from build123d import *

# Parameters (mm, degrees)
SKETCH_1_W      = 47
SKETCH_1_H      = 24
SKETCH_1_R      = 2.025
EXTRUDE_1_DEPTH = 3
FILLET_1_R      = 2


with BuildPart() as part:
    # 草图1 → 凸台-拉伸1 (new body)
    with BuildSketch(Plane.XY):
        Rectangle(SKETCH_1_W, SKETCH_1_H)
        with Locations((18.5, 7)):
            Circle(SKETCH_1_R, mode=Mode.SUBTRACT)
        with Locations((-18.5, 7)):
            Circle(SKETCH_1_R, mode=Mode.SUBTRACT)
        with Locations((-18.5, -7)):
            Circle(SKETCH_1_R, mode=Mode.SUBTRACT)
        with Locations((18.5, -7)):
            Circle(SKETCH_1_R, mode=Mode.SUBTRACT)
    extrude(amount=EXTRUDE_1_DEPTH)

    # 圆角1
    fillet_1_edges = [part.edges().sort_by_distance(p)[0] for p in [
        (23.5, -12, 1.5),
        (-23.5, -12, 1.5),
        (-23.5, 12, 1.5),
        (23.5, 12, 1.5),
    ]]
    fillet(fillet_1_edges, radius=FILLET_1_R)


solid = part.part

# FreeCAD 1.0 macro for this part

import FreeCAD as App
import Part
import Sketcher


def edges_at(feature, points):
    """Names of the edges that pass closest to the given points."""
    edges = feature.Shape.Edges
    near = lambda p: min(range(len(edges)), key=lambda i: edges[i].distToShape(Part.Vertex(*p))[0])
    return sorted({f"Edge{near(p) + 1}" for p in points})

doc = App.newDocument("Part")
body = doc.addObject("PartDesign::Body", "Body")

sketch1 = body.newObject("Sketcher::SketchObject", "Sketch")
sketch1.AttachmentSupport = (doc.getObject("XY_Plane"), [""])
sketch1.MapMode = "FlatFace"
sketch1.addGeometry(Part.LineSegment(App.Vector(-23.5, 12, 0), App.Vector(-23.5, -12, 0)), False)
sketch1.addGeometry(Part.LineSegment(App.Vector(-23.5, -12, 0), App.Vector(23.5, -12, 0)), False)
sketch1.addGeometry(Part.LineSegment(App.Vector(23.5, -12, 0), App.Vector(23.5, 12, 0)), False)
sketch1.addGeometry(Part.LineSegment(App.Vector(23.5, 12, 0), App.Vector(-23.5, 12, 0)), False)
sketch1.addGeometry(Part.Circle(App.Vector(-18.5, -7, 0), App.Vector(0, 0, 1), 2), False)
sketch1.addGeometry(Part.Circle(App.Vector(18.5, -7, 0), App.Vector(0, 0, 1), 2), False)
sketch1.addGeometry(Part.Circle(App.Vector(-18.5, 7, 0), App.Vector(0, 0, 1), 2), False)
sketch1.addGeometry(Part.Circle(App.Vector(18.5, 7, 0), App.Vector(0, 0, 1), 2), False)
sketch1.addConstraint(Sketcher.Constraint("Coincident", 0, 2, 1, 1))
sketch1.addConstraint(Sketcher.Constraint("Coincident", 1, 2, 2, 1))
sketch1.addConstraint(Sketcher.Constraint("Coincident", 2, 2, 3, 1))
sketch1.addConstraint(Sketcher.Constraint("Coincident", 3, 2, 0, 1))
sketch1.addConstraint(Sketcher.Constraint("Vertical", 0))
sketch1.addConstraint(Sketcher.Constraint("Horizontal", 1))
sketch1.addConstraint(Sketcher.Constraint("Vertical", 2))
sketch1.addConstraint(Sketcher.Constraint("Horizontal", 3))
sketch1.addConstraint(Sketcher.Constraint("Equal", 4, 5))
sketch1.addConstraint(Sketcher.Constraint("Equal", 5, 6))
sketch1.addConstraint(Sketcher.Constraint("Equal", 6, 7))
sketch1.addConstraint(Sketcher.Constraint("Symmetric", 5, 3, 6, 3, -1, 1))
sketch1.addConstraint(Sketcher.Constraint("Symmetric", 4, 3, 7, 3, -1, 1))
sketch1.addConstraint(Sketcher.Constraint("Symmetric", 0, 2, 2, 2, -1, 1))
sketch1.addConstraint(Sketcher.Constraint("Symmetric", 4, 3, 5, 3, -2))
sketch1.addConstraint(Sketcher.Constraint("Diameter", 4, 4.05))
sketch1.addConstraint(Sketcher.Constraint("DistanceX", 1, 1, 1, 2, 47.0))
sketch1.addConstraint(Sketcher.Constraint("DistanceY", 0, 2, 0, 1, 24.0))
sketch1.addConstraint(Sketcher.Constraint("DistanceY", 4, 3, -1, 1, 7.0))
sketch1.addConstraint(Sketcher.Constraint("DistanceX", 4, 3, 5, 3, 37.0))
pad1 = body.newObject("PartDesign::Pad", "Pad")
pad1.Profile = sketch1
pad1.Length = 3
doc.recompute()

fillet = body.newObject("PartDesign::Fillet", "Fillet")
fillet.Base = (pad1, edges_at(pad1, [
    (23.5, -12, 1.5),
    (-23.5, -12, 1.5),
    (-23.5, 12, 1.5),
    (23.5, 12, 1.5),
]))
fillet.Radius = 2

doc.recompute()
